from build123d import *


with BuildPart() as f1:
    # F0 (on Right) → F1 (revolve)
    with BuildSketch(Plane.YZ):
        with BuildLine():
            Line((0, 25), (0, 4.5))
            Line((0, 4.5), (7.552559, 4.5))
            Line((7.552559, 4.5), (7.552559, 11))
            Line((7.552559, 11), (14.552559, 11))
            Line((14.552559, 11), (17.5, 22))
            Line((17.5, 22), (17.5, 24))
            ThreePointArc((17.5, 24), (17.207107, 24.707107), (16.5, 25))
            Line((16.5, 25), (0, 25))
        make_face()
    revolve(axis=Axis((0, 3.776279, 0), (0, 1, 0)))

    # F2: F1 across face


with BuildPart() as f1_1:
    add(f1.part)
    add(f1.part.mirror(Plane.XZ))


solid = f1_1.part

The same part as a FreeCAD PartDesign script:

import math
import FreeCAD as App
import Part
import Sketcher

V = App.Vector
Q = App.Units.Quantity

doc = App.newDocument("Part")
body = doc.addObject("PartDesign::Body", "Body")

sketch1 = body.newObject("Sketcher::SketchObject", "Sketch")
sketch1.AttachmentSupport = (doc.getObject("YZ_Plane"), [""])
sketch1.MapMode = "FlatFace"
sketch1.addGeometry([
    Part.LineSegment(V(0, 25, 0), V(0, 4.5, 0)),
    Part.LineSegment(V(0, 4.5, 0), V(7.6, 4.5, 0)),
    Part.LineSegment(V(7.6, 4.5, 0), V(7.6, 11, 0)),
    Part.LineSegment(V(7.6, 11, 0), V(14.6, 11, 0)),
    Part.LineSegment(V(14.6, 11, 0), V(17.5, 22, 0)),
    Part.LineSegment(V(17.5, 22, 0), V(17.5, 24, 0)),
    Part.ArcOfCircle(Part.Circle(V(16.5, 24, 0), V(0, 0, 1), 1), math.radians(0), math.radians(90)),
    Part.LineSegment(V(16.5, 25, 0), V(0, 25, 0)),
], False)
sketch1.addConstraint([
    Sketcher.Constraint("Coincident", 0, 2, 1, 1),
    Sketcher.Constraint("Coincident", 1, 2, 2, 1),
    Sketcher.Constraint("Coincident", 2, 2, 3, 1),
    Sketcher.Constraint("Coincident", 3, 2, 4, 1),
    Sketcher.Constraint("Coincident", 4, 2, 5, 1),
    Sketcher.Constraint("Tangent", 5, 2, 6, 1),
    Sketcher.Constraint("Tangent", 6, 2, 7, 1),
    Sketcher.Constraint("Coincident", 7, 2, 0, 1),
    Sketcher.Constraint("Vertical", 0),
    Sketcher.Constraint("Horizontal", 1),
    Sketcher.Constraint("Vertical", 2),
    Sketcher.Constraint("Horizontal", 3),
    Sketcher.Constraint("Vertical", 5),
    Sketcher.Constraint("Horizontal", 7),
    Sketcher.Constraint("PointOnObject", 0, 2, -2),
    Sketcher.Constraint("Radius", 6, 0.999999),
    Sketcher.Constraint("DistanceX", 3, 1, 3, 2, 7.0),
    Sketcher.Constraint("DistanceY", 5, 1, 5, 2, 2.0),
    Sketcher.Constraint("Angle", 4, Q("75.000001 deg")),
    Sketcher.Constraint("DistanceX", 7, 2, 7, 1, 16.5),
    Sketcher.Constraint("DistanceY", 0, 2, 0, 1, 20.5),
    Sketcher.Constraint("DistanceY", 2, 1, 2, 2, 6.5),
    Sketcher.Constraint("DistanceY", -1, 1, 6, 3, 24.000001),
])
revolution = body.newObject("PartDesign::Revolution", "Revolution")
revolution.Profile = sketch1
revolution.ReferenceAxis = (sketch1, ["H_Axis"])
revolution.Angle = 360
body2 = doc.addObject("PartDesign::Body", "Body001")
doc.recompute()

body2.BaseFeature = body
doc.recompute()

mirroring = doc.addObject("Part::Mirroring", "Mirroring")
mirroring.Source = body
mirroring.Base = V(0, 0, 0)
mirroring.Normal = V(0, -1, 0)
body3 = doc.addObject("PartDesign::Body", "Body002")
body3.BaseFeature = mirroring
boolean = body2.newObject("PartDesign::Boolean", "Boolean")
boolean.Type = "Fuse"
boolean.addObjects([body3])
doc.recompute()
mirroring.Visibility = False

doc.recompute()
